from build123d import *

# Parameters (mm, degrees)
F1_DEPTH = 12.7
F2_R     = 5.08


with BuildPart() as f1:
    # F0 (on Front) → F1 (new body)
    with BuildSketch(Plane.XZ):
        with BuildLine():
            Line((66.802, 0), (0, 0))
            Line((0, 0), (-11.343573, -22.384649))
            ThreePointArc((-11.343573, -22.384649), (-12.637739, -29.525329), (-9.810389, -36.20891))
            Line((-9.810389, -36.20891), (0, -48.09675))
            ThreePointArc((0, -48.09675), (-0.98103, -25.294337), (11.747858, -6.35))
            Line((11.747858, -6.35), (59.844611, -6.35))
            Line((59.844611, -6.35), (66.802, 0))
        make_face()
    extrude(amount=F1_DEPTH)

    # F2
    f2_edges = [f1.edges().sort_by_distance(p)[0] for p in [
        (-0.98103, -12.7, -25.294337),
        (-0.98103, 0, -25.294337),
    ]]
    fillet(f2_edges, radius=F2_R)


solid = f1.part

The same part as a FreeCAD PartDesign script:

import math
import FreeCAD as App
import Part
import Sketcher
from FreeCAD import Vector
Q = App.Units.Quantity


def edges_at(feature, points):
    """Names of the edges that pass closest to the given points."""
    edges = feature.Shape.Edges
    near = lambda p: min(range(len(edges)), key=lambda i: edges[i].distToShape(Part.Vertex(*p))[0])
    return sorted({f"Edge{near(p) + 1}" for p in points})

doc = App.newDocument("Part")
body = doc.addObject("PartDesign::Body", "Body")

# Sketch on XZ plane
sketch1 = body.newObject("Sketcher::SketchObject", "Sketch")
sketch1.AttachmentSupport = (doc.getObject("XZ_Plane"), [""])
sketch1.MapMode = "FlatFace"
sketch1.addGeometry(Part.LineSegment(Vector(66.802, 0, 0), Vector(0, 0, 0)), False)
sketch1.addGeometry(Part.LineSegment(Vector(0, 0, 0), Vector(-11.343573, -22.384649, 0)), False)
sketch1.addGeometry(Part.ArcOfCircle(Part.Circle(Vector(-0.015134, -28.125415, 0), Vector(0, 0, 1), 12.699997), math.radians(153.126071), math.radians(219.531017)), False)
sketch1.addGeometry(Part.LineSegment(Vector(-9.810389, -36.20891, 0), Vector(0, -48.09675, 0)), False)
sketch1.addGeometry(Part.ArcOfCircle(Part.Circle(Vector(34.226201, -35.201923, 0), Vector(0, 0, 1), 36.57471), math.radians(127.921921), math.radians(200.644055)), False)
sketch1.addGeometry(Part.LineSegment(Vector(11.747858, -6.35, 0), Vector(59.844611, -6.35, 0)), False)
sketch1.addGeometry(Part.LineSegment(Vector(59.844611, -6.35, 0), Vector(66.802, 0, 0)), False)
sketch1.addConstraint(Sketcher.Constraint("Coincident", 0, 2, 1, 1))
sketch1.addConstraint(Sketcher.Constraint("Tangent", 1, 2, 2, 1))
sketch1.addConstraint(Sketcher.Constraint("Tangent", 2, 2, 3, 1))
sketch1.addConstraint(Sketcher.Constraint("Coincident", 3, 2, 4, 2))
sketch1.addConstraint(Sketcher.Constraint("Coincident", 4, 1, 5, 1))
sketch1.addConstraint(Sketcher.Constraint("Coincident", 5, 2, 6, 1))
sketch1.addConstraint(Sketcher.Constraint("Coincident", 6, 2, 0, 1))
sketch1.addConstraint(Sketcher.Constraint("Horizontal", 0))
sketch1.addConstraint(Sketcher.Constraint("Horizontal", 5))
sketch1.addConstraint(Sketcher.Constraint("Coincident", 0, 2, -1, 1))
sketch1.addConstraint(Sketcher.Constraint("PointOnObject", 3, 2, -2))
sketch1.addConstraint(Sketcher.Constraint("Radius", 2, Q("0.4999999 in")))
sketch1.addConstraint(Sketcher.Constraint("DistanceX", 0, 2, 0, 1, Q("2.63 in")))
sketch1.addConstraint(Sketcher.Constraint("DistanceY", 4, 1, -1, 1, Q("0.25 in")))
sketch1.addConstraint(Sketcher.Constraint("Radius", 4, Q("36.57471 mm")))
sketch1.addConstraint(Sketcher.Constraint("DistanceX", -1, 1, 4, 3, Q("34.226201 mm")))
sketch1.addConstraint(Sketcher.Constraint("DistanceY", 3, 2, 1, 2, Q("25.712101 mm")))
sketch1.addConstraint(Sketcher.Constraint("Distance", 6, Q("9.419541 mm")))
sketch1.addConstraint(Sketcher.Constraint("DistanceX", 5, 1, 5, 2, Q("48.096753 mm")))
sketch1.addConstraint(Sketcher.Constraint("DistanceX", 2, 2, -1, 1, Q("9.810389 mm")))
pad1 = body.newObject("PartDesign::Pad", "Pad")
pad1.Profile = sketch1
pad1.Length = Q("0.5 in")
doc.recompute()

fillet = body.newObject("PartDesign::Fillet", "Fillet")
fillet.Base = (pad1, edges_at(pad1, [(-0.981, -12.7, -25.294), (-0.981, 0, -25.294)]))
fillet.Radius = Q("0.2 in")

doc.recompute()
